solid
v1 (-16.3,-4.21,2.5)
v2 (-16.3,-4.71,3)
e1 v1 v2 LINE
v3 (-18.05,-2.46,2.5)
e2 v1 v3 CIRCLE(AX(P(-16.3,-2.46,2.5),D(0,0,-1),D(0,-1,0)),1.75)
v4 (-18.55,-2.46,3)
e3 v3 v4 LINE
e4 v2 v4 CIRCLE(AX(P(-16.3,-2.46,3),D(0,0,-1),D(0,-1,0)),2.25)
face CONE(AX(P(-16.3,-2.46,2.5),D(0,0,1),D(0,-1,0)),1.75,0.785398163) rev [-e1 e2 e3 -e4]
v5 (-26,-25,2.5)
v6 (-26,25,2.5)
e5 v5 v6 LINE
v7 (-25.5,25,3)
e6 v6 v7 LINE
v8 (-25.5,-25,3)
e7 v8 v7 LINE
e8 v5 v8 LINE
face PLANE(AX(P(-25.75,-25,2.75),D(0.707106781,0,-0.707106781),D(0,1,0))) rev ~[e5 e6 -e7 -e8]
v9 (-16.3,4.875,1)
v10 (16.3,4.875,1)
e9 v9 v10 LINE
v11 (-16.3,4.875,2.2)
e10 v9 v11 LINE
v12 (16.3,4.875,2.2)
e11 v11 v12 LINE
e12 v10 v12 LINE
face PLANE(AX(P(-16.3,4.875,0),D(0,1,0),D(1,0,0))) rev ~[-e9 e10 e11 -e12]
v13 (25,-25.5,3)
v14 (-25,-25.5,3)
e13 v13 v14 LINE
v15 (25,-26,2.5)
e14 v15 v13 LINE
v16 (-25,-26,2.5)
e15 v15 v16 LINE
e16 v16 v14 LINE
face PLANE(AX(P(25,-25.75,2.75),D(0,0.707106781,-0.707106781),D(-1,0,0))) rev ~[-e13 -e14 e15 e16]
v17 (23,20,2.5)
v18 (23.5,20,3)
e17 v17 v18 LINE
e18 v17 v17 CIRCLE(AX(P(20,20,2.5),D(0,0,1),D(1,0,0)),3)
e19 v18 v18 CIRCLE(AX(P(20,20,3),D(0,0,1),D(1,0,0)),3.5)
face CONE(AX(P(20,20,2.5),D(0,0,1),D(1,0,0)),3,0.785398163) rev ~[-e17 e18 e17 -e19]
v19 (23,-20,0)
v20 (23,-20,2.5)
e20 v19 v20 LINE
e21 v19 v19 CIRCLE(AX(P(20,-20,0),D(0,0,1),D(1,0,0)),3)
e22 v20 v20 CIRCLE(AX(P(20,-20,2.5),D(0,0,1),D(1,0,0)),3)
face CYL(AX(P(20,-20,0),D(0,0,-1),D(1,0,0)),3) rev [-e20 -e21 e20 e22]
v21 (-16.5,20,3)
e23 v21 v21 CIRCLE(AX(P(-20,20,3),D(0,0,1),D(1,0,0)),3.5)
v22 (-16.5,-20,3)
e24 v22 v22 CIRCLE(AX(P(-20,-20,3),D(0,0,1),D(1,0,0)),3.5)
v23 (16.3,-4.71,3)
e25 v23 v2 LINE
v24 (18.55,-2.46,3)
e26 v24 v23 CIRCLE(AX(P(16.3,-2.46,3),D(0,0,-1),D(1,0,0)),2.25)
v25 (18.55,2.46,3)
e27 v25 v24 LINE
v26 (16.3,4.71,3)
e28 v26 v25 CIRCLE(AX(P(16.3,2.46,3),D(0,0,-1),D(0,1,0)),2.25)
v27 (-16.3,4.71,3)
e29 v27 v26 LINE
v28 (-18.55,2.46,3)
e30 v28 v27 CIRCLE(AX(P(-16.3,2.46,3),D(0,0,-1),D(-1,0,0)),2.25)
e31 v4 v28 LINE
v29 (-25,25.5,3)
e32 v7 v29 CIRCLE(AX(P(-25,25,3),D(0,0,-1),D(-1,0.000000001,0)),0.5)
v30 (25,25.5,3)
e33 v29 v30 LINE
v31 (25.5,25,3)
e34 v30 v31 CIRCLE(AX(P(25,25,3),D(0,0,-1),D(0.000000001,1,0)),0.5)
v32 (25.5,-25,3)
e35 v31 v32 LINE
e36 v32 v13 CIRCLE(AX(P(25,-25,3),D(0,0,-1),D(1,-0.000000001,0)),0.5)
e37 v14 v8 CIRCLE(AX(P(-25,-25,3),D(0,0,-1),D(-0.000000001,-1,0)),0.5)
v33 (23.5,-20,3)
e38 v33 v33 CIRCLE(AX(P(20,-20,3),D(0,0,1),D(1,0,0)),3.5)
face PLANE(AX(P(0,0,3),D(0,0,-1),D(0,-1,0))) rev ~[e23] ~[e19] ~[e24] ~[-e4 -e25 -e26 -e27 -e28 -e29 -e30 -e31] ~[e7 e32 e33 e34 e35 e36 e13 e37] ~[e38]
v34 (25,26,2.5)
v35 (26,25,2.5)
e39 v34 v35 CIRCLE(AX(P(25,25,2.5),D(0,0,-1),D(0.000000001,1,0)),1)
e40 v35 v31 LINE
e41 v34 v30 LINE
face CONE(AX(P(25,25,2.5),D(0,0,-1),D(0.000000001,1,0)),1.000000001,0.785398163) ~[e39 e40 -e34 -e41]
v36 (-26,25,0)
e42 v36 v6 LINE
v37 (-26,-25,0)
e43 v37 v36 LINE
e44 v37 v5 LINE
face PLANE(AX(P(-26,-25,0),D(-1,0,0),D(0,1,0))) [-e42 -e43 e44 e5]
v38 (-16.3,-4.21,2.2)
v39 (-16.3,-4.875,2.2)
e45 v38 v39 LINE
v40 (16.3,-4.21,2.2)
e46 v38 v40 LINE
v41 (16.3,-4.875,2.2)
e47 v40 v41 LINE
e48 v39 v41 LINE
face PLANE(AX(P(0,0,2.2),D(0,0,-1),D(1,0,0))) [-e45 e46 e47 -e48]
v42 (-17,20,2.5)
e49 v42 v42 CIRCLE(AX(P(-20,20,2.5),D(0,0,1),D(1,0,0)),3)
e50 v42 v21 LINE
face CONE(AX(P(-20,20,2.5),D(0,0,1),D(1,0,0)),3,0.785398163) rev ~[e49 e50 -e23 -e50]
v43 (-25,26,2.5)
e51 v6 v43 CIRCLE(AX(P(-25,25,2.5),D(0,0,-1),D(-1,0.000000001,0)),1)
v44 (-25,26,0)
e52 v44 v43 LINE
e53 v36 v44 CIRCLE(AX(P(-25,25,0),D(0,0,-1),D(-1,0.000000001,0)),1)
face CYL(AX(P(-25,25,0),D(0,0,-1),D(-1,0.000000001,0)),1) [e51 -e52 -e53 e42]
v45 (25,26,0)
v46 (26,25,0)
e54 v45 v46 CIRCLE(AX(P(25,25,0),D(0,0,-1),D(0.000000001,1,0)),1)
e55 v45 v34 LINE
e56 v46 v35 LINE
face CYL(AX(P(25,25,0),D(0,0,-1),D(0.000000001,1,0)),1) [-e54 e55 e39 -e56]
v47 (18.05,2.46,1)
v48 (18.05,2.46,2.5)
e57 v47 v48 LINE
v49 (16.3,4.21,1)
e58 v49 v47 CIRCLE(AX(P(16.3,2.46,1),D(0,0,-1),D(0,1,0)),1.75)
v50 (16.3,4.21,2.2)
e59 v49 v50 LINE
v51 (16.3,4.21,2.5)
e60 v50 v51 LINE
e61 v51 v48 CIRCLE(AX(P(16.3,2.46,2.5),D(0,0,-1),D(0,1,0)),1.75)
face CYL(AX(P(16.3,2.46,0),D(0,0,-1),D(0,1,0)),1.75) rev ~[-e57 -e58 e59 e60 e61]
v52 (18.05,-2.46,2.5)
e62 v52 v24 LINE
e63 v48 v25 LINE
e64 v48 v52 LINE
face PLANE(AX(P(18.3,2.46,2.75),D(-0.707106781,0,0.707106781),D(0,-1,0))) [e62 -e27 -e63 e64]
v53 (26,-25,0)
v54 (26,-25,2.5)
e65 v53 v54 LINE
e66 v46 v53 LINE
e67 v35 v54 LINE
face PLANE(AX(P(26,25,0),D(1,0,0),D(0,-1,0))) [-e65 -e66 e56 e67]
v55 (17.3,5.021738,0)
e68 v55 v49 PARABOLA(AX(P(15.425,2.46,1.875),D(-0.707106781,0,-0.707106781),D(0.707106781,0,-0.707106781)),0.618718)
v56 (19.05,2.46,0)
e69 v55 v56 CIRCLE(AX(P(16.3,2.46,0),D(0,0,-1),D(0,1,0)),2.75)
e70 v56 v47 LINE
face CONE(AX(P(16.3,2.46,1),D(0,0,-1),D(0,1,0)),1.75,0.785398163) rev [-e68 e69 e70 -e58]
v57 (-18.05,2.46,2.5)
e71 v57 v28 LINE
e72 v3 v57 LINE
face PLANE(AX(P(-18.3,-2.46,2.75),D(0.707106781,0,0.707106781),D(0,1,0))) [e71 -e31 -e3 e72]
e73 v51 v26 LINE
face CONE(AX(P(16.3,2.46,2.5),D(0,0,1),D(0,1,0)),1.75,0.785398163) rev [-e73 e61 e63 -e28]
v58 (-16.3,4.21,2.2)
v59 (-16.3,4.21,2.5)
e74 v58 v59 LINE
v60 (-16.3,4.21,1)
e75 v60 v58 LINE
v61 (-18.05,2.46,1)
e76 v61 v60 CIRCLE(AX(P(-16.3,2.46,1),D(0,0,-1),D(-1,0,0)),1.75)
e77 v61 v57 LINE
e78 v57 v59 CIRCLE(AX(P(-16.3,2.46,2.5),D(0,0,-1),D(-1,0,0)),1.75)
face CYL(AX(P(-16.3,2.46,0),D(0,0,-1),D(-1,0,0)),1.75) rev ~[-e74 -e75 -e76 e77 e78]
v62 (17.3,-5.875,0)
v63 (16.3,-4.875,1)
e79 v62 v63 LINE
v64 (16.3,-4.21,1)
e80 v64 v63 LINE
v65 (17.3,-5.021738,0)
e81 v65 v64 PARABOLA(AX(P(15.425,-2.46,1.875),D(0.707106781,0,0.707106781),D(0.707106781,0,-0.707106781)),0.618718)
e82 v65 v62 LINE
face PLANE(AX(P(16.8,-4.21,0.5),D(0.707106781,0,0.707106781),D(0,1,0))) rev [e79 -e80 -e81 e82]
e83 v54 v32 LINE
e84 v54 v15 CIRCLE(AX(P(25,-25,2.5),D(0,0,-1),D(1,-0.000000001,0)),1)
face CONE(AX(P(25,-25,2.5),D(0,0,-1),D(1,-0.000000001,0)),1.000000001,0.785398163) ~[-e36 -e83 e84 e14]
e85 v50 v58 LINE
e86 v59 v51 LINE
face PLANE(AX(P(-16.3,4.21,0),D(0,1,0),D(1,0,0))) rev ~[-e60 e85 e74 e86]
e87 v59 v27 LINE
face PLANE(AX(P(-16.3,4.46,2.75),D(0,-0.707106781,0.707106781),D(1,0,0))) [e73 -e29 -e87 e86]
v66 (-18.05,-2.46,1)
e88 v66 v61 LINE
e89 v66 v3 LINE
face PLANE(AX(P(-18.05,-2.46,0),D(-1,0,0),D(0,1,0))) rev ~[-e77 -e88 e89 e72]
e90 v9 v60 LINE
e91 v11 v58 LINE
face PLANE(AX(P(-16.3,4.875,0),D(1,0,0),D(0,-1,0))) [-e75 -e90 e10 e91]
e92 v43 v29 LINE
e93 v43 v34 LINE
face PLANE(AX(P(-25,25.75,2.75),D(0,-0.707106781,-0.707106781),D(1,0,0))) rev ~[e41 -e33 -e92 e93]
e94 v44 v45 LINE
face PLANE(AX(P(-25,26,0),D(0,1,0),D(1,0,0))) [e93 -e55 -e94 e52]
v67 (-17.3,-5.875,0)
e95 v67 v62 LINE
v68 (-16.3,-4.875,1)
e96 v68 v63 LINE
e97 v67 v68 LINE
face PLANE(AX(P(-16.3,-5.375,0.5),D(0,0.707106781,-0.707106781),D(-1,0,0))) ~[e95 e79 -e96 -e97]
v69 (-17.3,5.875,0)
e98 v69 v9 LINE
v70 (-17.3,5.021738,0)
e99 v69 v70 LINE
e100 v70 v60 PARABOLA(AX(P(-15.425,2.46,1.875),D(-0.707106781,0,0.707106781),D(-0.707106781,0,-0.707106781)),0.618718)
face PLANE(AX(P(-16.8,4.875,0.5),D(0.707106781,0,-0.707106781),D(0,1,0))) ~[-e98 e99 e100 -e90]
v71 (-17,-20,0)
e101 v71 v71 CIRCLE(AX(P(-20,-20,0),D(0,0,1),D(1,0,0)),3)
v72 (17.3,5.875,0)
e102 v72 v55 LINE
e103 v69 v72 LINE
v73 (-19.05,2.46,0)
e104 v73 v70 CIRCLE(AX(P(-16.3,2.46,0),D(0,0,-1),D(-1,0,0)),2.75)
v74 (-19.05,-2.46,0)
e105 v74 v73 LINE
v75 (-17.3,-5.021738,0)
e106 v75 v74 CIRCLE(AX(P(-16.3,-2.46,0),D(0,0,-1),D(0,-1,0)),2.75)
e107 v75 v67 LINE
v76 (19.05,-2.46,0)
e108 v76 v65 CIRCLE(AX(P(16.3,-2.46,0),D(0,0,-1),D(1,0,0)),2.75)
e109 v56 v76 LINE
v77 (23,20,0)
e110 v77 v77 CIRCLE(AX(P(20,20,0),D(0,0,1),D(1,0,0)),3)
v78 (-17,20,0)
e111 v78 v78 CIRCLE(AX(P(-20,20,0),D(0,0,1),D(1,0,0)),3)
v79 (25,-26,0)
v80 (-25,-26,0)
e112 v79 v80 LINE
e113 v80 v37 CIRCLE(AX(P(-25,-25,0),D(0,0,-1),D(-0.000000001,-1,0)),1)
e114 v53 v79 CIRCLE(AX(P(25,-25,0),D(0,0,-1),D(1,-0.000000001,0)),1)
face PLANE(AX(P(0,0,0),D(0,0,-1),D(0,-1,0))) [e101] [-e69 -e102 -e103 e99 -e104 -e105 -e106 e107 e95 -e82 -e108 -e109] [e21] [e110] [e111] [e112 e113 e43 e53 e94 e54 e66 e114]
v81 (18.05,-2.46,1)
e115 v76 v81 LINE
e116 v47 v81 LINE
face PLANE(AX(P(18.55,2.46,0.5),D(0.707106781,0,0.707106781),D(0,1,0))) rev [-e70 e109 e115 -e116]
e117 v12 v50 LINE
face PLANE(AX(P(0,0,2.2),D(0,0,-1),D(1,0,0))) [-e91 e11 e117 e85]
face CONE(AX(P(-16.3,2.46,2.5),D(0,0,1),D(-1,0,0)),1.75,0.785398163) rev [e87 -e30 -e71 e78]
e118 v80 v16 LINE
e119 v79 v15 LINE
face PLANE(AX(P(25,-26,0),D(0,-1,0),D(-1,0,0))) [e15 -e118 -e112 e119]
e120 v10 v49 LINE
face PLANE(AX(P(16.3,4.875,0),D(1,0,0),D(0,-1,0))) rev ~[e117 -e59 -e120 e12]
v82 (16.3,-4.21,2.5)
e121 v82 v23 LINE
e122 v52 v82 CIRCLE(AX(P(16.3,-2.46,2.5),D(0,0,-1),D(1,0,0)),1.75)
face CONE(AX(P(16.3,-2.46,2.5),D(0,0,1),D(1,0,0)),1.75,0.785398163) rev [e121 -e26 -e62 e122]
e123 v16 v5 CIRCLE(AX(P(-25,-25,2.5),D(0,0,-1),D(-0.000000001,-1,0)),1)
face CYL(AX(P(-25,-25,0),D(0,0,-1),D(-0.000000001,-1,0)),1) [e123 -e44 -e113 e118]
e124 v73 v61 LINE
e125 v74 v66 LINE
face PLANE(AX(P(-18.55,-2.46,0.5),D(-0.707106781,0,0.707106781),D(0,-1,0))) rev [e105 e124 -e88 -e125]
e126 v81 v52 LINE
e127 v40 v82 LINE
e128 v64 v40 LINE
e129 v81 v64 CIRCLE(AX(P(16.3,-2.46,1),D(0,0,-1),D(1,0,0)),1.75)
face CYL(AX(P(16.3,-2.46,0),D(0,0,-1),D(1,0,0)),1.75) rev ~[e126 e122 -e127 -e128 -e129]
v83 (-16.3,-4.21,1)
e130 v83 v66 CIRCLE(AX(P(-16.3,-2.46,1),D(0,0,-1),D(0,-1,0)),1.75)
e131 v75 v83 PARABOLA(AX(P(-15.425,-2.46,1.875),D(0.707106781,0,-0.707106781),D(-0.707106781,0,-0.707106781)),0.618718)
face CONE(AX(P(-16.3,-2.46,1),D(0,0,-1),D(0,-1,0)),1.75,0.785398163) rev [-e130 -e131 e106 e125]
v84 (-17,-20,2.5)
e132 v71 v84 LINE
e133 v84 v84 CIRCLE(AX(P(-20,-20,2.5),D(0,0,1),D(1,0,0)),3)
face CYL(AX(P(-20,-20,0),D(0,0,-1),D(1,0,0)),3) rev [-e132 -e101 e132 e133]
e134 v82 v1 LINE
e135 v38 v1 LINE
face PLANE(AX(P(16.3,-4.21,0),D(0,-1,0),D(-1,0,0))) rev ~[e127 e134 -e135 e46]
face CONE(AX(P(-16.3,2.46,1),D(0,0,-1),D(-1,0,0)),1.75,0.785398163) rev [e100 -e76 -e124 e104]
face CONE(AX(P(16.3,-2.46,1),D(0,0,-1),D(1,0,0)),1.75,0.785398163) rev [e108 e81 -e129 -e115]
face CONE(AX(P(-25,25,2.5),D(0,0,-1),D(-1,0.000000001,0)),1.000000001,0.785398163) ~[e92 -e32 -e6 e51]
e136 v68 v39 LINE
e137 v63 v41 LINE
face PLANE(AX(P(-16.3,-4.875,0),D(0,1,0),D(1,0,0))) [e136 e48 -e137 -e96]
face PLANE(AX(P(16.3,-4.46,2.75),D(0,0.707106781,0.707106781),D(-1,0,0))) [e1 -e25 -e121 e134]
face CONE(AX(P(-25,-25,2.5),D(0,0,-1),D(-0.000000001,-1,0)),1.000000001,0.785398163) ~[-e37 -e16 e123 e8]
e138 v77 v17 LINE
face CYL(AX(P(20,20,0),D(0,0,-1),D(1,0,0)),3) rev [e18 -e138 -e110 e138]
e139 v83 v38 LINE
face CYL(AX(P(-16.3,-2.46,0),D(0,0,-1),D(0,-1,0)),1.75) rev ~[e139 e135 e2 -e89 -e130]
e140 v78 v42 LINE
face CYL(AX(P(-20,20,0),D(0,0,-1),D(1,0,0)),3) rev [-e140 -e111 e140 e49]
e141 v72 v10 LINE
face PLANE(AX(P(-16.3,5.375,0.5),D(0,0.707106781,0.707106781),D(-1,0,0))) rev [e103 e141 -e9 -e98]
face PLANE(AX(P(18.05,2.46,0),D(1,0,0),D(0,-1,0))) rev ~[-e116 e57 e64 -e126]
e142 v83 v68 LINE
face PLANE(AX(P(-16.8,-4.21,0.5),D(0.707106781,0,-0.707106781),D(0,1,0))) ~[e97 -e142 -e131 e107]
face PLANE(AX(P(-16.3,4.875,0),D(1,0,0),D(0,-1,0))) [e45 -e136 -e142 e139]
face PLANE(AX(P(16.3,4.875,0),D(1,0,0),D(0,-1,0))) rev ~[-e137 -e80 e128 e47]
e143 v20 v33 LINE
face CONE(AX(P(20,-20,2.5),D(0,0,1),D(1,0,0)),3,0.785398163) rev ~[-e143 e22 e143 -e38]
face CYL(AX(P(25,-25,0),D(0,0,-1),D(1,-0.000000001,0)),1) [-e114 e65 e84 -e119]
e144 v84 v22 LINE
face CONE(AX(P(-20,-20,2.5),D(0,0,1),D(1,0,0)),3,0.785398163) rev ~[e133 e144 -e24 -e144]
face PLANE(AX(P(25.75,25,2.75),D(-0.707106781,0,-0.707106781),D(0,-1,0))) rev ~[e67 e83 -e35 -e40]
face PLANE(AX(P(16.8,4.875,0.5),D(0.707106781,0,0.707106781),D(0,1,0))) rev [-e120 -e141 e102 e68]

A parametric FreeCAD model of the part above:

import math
import FreeCAD as App
import Part
import Sketcher


def edges_at(feature, points):
    """Names of the edges that pass closest to the given points."""
    edges = feature.Shape.Edges
    near = lambda p: min(range(len(edges)), key=lambda i: edges[i].distToShape(Part.Vertex(*p))[0])
    return sorted({f"Edge{near(p) + 1}" for p in points})


def add_polygon(sketch, points):
    """Adds a closed chain of lines whose ends are joined by coincident constraints."""
    first, n = sketch.GeometryCount, len(points)
    for a, b in zip(points, points[1:] + points[:1]):
        sketch.addGeometry(Part.LineSegment(App.Vector(*a, 0), App.Vector(*b, 0)), False)
    for i in range(n):
        sketch.addConstraint(Sketcher.Constraint("Coincident", first + i, 2, first + (i + 1) % n, 1))

doc = App.newDocument("Part")
params = doc.addObject("Spreadsheet::Sheet", "Params")
for row, (alias, value) in enumerate([
    ("sketch1_diameter", "6 mm"),
    ("sketch1_radius", "1 mm"),
    ("sketch1_width", "50 mm"),
    ("sketch1_radius2", "1.75 mm"),
    ("sketch1_width2", "32.6 mm"),
    ("pad1_length", "3 mm"),
    ("sketch2_width", "32.6 mm"),
    ("sketch2_height", "9.75 mm"),
    ("pocket1_length", "2.2 mm"),
    ("chamfer_size", "1 mm"),
    ("chamfer2_size", "0.5 mm"),
], start=1):
    params.set(f"A{row}", alias)
    params.set(f"B{row}", "=" + value)
    params.setAlias(f"B{row}", alias)

body = doc.addObject("PartDesign::Body", "Body")

# Sketch on XY plane
sketch1 = doc.addObject("Sketcher::SketchObject", "Sketch")
body.addObject(sketch1)
sketch1.AttachmentSupport = (doc.XY_Plane, [""])
sketch1.MapMode = "FlatFace"
sketch1.addGeometry(Part.LineSegment(App.Vector(-26, 25, 0), App.Vector(-26, -25, 0)), False)
sketch1.addGeometry(Part.ArcOfCircle(Part.Circle(App.Vector(-25, -25, 0), App.Vector(0, 0, 1), 1), math.radians(-180), math.radians(-90)), False)
sketch1.addGeometry(Part.LineSegment(App.Vector(-25, -26, 0), App.Vector(25, -26, 0)), False)
sketch1.addGeometry(Part.ArcOfCircle(Part.Circle(App.Vector(25, -25, 0), App.Vector(0, 0, 1), 1), math.radians(-90), math.radians(0)), False)
sketch1.addGeometry(Part.LineSegment(App.Vector(26, -25, 0), App.Vector(26, 25, 0)), False)
sketch1.addGeometry(Part.ArcOfCircle(Part.Circle(App.Vector(25, 25, 0), App.Vector(0, 0, 1), 1), math.radians(0), math.radians(90)), False)
sketch1.addGeometry(Part.LineSegment(App.Vector(25, 26, 0), App.Vector(-25, 26, 0)), False)
sketch1.addGeometry(Part.ArcOfCircle(Part.Circle(App.Vector(-25, 25, 0), App.Vector(0, 0, 1), 1), math.radians(90), math.radians(180)), False)
sketch1.addGeometry(Part.Circle(App.Vector(20, 20, 0), App.Vector(0, 0, 1), 3), False)
sketch1.addGeometry(Part.Circle(App.Vector(20, -20, 0), App.Vector(0, 0, 1), 3), False)
sketch1.addGeometry(Part.Circle(App.Vector(-20, 20, 0), App.Vector(0, 0, 1), 3), False)
sketch1.addGeometry(Part.LineSegment(App.Vector(-18.1, -2.5, 0), App.Vector(-18.1, 2.5, 0)), False)
sketch1.addGeometry(Part.ArcOfCircle(Part.Circle(App.Vector(-16.3, 2.5, 0), App.Vector(0, 0, 1), 1.8), math.radians(90), math.radians(180)), False)
sketch1.addGeometry(Part.LineSegment(App.Vector(-16.3, 4.2, 0), App.Vector(16.3, 4.2, 0)), False)
sketch1.addGeometry(Part.ArcOfCircle(Part.Circle(App.Vector(16.3, 2.5, 0), App.Vector(0, 0, 1), 1.8), math.radians(0), math.radians(90)), False)
sketch1.addGeometry(Part.LineSegment(App.Vector(18.1, 2.5, 0), App.Vector(18.1, -2.5, 0)), False)
sketch1.addGeometry(Part.ArcOfCircle(Part.Circle(App.Vector(16.3, -2.5, 0), App.Vector(0, 0, 1), 1.8), math.radians(-90), math.radians(0)), False)
sketch1.addGeometry(Part.LineSegment(App.Vector(16.3, -4.2, 0), App.Vector(-16.3, -4.2, 0)), False)
sketch1.addGeometry(Part.ArcOfCircle(Part.Circle(App.Vector(-16.3, -2.5, 0), App.Vector(0, 0, 1), 1.8), math.radians(180), math.radians(270)), False)
sketch1.addGeometry(Part.Circle(App.Vector(-20, -20, 0), App.Vector(0, 0, 1), 3), False)
sketch1.addConstraint(Sketcher.Constraint("Tangent", 0, 2, 1, 1))
sketch1.addConstraint(Sketcher.Constraint("Tangent", 1, 2, 2, 1))
sketch1.addConstraint(Sketcher.Constraint("Tangent", 2, 2, 3, 1))
sketch1.addConstraint(Sketcher.Constraint("Tangent", 3, 2, 4, 1))
sketch1.addConstraint(Sketcher.Constraint("Tangent", 4, 2, 5, 1))
sketch1.addConstraint(Sketcher.Constraint("Tangent", 5, 2, 6, 1))
sketch1.addConstraint(Sketcher.Constraint("Tangent", 6, 2, 7, 1))
sketch1.addConstraint(Sketcher.Constraint("Tangent", 7, 2, 0, 1))
sketch1.addConstraint(Sketcher.Constraint("Tangent", 11, 2, 12, 2))
sketch1.addConstraint(Sketcher.Constraint("Tangent", 12, 1, 13, 1))
sketch1.addConstraint(Sketcher.Constraint("Tangent", 13, 2, 14, 2))
sketch1.addConstraint(Sketcher.Constraint("Tangent", 14, 1, 15, 1))
sketch1.addConstraint(Sketcher.Constraint("Tangent", 15, 2, 16, 2))
sketch1.addConstraint(Sketcher.Constraint("Tangent", 16, 1, 17, 1))
sketch1.addConstraint(Sketcher.Constraint("Tangent", 17, 2, 18, 2))
sketch1.addConstraint(Sketcher.Constraint("Tangent", 18, 1, 11, 1))
sketch1.addConstraint(Sketcher.Constraint("Vertical", 0))
sketch1.addConstraint(Sketcher.Constraint("Horizontal", 2))
sketch1.addConstraint(Sketcher.Constraint("Vertical", 4))
sketch1.addConstraint(Sketcher.Constraint("Horizontal", 6))
sketch1.addConstraint(Sketcher.Constraint("Vertical", 11))
sketch1.addConstraint(Sketcher.Constraint("Horizontal", 13))
sketch1.addConstraint(Sketcher.Constraint("Vertical", 15))
sketch1.addConstraint(Sketcher.Constraint("Horizontal", 17))
sketch1.addConstraint(Sketcher.Constraint("Equal", 1, 3))
sketch1.addConstraint(Sketcher.Constraint("Equal", 3, 5))
sketch1.addConstraint(Sketcher.Constraint("Equal", 5, 7))
sketch1.addConstraint(Sketcher.Constraint("Equal", 8, 9))
sketch1.addConstraint(Sketcher.Constraint("Equal", 9, 10))
sketch1.addConstraint(Sketcher.Constraint("Equal", 12, 14))
sketch1.addConstraint(Sketcher.Constraint("Equal", 14, 16))
sketch1.addConstraint(Sketcher.Constraint("Equal", 16, 18))
sketch1.addConstraint(Sketcher.Constraint("Equal", 10, 19))
sketch1.addConstraint(Sketcher.Constraint("Symmetric", 1, 3, 5, 3, -1, 1))
sketch1.addConstraint(Sketcher.Constraint("Symmetric", 9, 3, 10, 3, -1, 1))
sketch1.addConstraint(Sketcher.Constraint("Symmetric", 12, 3, 16, 3, -1, 1))
sketch1.addConstraint(Sketcher.Constraint("Symmetric", 8, 3, 19, 3, -1, 1))
sketch1.addConstraint(Sketcher.Constraint("Symmetric", 8, 3, 10, 3, -2))
sketch1.addConstraint(Sketcher.Constraint("Equal", 6, 0))
sketch1.addConstraint(Sketcher.Constraint("Diameter", 8, 6.0))
sketch1.addConstraint(Sketcher.Constraint("Radius", 1, 1.0))
sketch1.addConstraint(Sketcher.Constraint("DistanceX", 2, 1, 2, 2, 50.0))
sketch1.addConstraint(Sketcher.Constraint("Radius", 12, 1.75))
sketch1.addConstraint(Sketcher.Constraint("DistanceX", 13, 1, 13, 2, 32.6))
sketch1.addConstraint(Sketcher.Constraint("DistanceX", -1, 1, 8, 3, 20.0))
sketch1.addConstraint(Sketcher.Constraint("DistanceY", -1, 1, 8, 3, 20.0))
sketch1.addConstraint(Sketcher.Constraint("DistanceY", 11, 1, 11, 2, 4.92))
sketch1.setExpression("Constraints[39]", "Params.sketch1_diameter")
sketch1.setExpression("Constraints[40]", "Params.sketch1_radius")
sketch1.setExpression("Constraints[41]", "Params.sketch1_width")
sketch1.setExpression("Constraints[42]", "Params.sketch1_radius2")
sketch1.setExpression("Constraints[43]", "Params.sketch1_width2")
pad1 = doc.addObject("PartDesign::Pad", "Pad")
body.addObject(pad1)
pad1.Profile = sketch1
pad1.setExpression("Length", "Params.pad1_length")

# Sketch on XY plane
sketch2 = doc.addObject("Sketcher::SketchObject", "Sketch001")
body.addObject(sketch2)
sketch2.AttachmentSupport = (doc.XY_Plane, [""])
sketch2.MapMode = "FlatFace"
add_polygon(sketch2, [(-16, -5), (-16, 5), (16, 5), (16, -5)])  # lines 0-3
sketch2.addConstraint(Sketcher.Constraint("Vertical", 0))
sketch2.addConstraint(Sketcher.Constraint("Horizontal", 1))
sketch2.addConstraint(Sketcher.Constraint("Vertical", 2))
sketch2.addConstraint(Sketcher.Constraint("Horizontal", 3))
sketch2.addConstraint(Sketcher.Constraint("Symmetric", 0, 2, 2, 2, -1, 1))
sketch2.addConstraint(Sketcher.Constraint("DistanceX", 1, 1, 1, 2, 32.6))
sketch2.addConstraint(Sketcher.Constraint("DistanceY", 0, 1, 0, 2, 9.75))
sketch2.setExpression("Constraints[9]", "Params.sketch2_width")
sketch2.setExpression("Constraints[10]", "Params.sketch2_height")
pocket1 = doc.addObject("PartDesign::Pocket", "Pocket")
body.addObject(pocket1)
pocket1.Profile = sketch2
pocket1.setExpression("Length", "Params.pocket1_length")
pocket1.Reversed = True
doc.recompute()

chamfer = doc.addObject("PartDesign::Chamfer", "Chamfer")
body.addObject(chamfer)
chamfer.Base = (pocket1, edges_at(pocket1, [
    (17.537, -3.697, 0),
    (18.05, 0, 0),
    (17.537, 3.697, 0),
    (-17.537, 3.697, 0),
    (-18.05, 0, 0),
    (-17.537, -3.697, 0),
    (16.3, 4.543, 0),
    (-16.3, 4.543, 0),
    (0, 4.875, 0),
    (-16.3, -4.543, 0),
    (16.3, -4.543, 0),
    (0, -4.875, 0),
]))
chamfer.setExpression("Size", "Params.chamfer_size")
doc.recompute()

chamfer2 = doc.addObject("PartDesign::Chamfer", "Chamfer001")
body.addObject(chamfer2)
chamfer2.Base = (chamfer, edges_at(chamfer, [
    (25.707, -25.707, 3),
    (26, 0, 3),
    (25.707, 25.707, 3),
    (0, 26, 3),
    (-23, -20, 3),
    (-23, 20, 3),
    (17, 20, 3),
    (-25.707, 25.707, 3),
    (17, -20, 3),
    (-26, 0, 3),
    (-25.707, -25.707, 3),
    (17.537, -3.697, 3),
    (18.05, 0, 3),
    (17.537, 3.697, 3),
    (0, 4.21, 3),
    (-17.537, 3.697, 3),
    (-18.05, 0, 3),
    (-17.537, -3.697, 3),
    (0, -4.21, 3),
    (0, -26, 3),
]))
chamfer2.setExpression("Size", "Params.chamfer2_size")

doc.recompute()
